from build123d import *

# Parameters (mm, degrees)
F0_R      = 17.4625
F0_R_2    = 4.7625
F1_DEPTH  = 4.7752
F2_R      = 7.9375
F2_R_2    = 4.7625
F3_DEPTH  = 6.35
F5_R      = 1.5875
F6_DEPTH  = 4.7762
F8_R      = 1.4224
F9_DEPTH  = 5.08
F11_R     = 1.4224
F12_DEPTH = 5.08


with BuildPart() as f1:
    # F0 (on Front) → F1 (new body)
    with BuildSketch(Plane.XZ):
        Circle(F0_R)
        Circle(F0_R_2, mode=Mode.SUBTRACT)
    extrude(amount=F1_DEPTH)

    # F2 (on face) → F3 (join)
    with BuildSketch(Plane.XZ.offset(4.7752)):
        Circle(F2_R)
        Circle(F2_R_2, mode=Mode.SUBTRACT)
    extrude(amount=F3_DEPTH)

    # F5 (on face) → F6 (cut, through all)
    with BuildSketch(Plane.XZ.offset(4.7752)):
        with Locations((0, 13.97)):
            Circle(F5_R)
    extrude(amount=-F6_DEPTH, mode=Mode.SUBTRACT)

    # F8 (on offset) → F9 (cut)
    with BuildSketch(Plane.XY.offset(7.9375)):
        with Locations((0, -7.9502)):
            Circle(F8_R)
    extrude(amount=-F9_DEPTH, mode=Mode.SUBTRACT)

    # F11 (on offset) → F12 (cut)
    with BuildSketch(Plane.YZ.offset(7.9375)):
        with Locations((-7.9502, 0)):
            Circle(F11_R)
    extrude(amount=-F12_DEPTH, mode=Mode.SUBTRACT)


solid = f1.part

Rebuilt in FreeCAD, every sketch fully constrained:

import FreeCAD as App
import Part
import Sketcher
Q = App.Units.Quantity

doc = App.newDocument("Part")
body = doc.addObject("PartDesign::Body", "Body")

sketch1 = doc.addObject("Sketcher::SketchObject", "Sketch")
body.addObject(sketch1)
sketch1.AttachmentSupport = (doc.XZ_Plane, [""])
sketch1.MapMode = "FlatFace"
sketch1.addGeometry([
    Part.Circle(App.Vector(0, 0, 0), App.Vector(0, 0, 1), 17.4625),
    Part.Circle(App.Vector(0, 0, 0), App.Vector(0, 0, 1), 4.7625),
], False)
sketch1.addConstraint([
    Sketcher.Constraint("Coincident", 0, 3, -1, 1),
    Sketcher.Constraint("Coincident", 1, 3, -1, 1),
    Sketcher.Constraint("Diameter", 0, Q("1.375 in")),
    Sketcher.Constraint("Diameter", 1, Q("0.375 in")),
])
pad1 = doc.addObject("PartDesign::Pad", "Pad")
body.addObject(pad1)
pad1.Profile = sketch1
pad1.Length = Q("0.188 in")

sketch2 = doc.addObject("Sketcher::SketchObject", "Sketch001")
body.addObject(sketch2)
sketch2.AttachmentSupport = (doc.XZ_Plane, [""])
sketch2.MapMode = "FlatFace"
sketch2.AttachmentOffset = App.Placement(App.Vector(0, 0, 0.188 * 25.4), App.Rotation())
sketch2.addGeometry([
    Part.Circle(App.Vector(0, 0, 0), App.Vector(0, 0, 1), 7.9375),
    Part.Circle(App.Vector(0, 0, 0), App.Vector(0, 0, 1), 4.7625),
], False)
sketch2.addConstraint([
    Sketcher.Constraint("Coincident", 0, 3, -1, 1),
    Sketcher.Constraint("Coincident", 1, 3, -1, 1),
    Sketcher.Constraint("Diameter", 0, Q("0.625 in")),
    Sketcher.Constraint("Diameter", 1, Q("0.375 in")),
])
pad2 = doc.addObject("PartDesign::Pad", "Pad001")
body.addObject(pad2)
pad2.Profile = sketch2
pad2.Length = Q("0.25 in")

sketch3 = doc.addObject("Sketcher::SketchObject", "Sketch002")
body.addObject(sketch3)
sketch3.AttachmentSupport = (doc.XZ_Plane, [""])
sketch3.MapMode = "FlatFace"
sketch3.AttachmentOffset = App.Placement(App.Vector(0, 0, 0.188 * 25.4), App.Rotation())
sketch3.addGeometry(Part.Circle(App.Vector(0, 13.97, 0), App.Vector(0, 0, 1), 1.5875), False)
sketch3.addConstraint([
    Sketcher.Constraint("PointOnObject", 0, 3, -2),
    Sketcher.Constraint("Diameter", 0, Q("0.125 in")),
    Sketcher.Constraint("DistanceY", -1, 1, 0, 3, Q("0.55 in")),
])
pocket1 = doc.addObject("PartDesign::Pocket", "Pocket")
body.addObject(pocket1)
pocket1.Profile = sketch3
pocket1.Type = "ThroughAll"

sketch4 = doc.addObject("Sketcher::SketchObject", "Sketch003")
body.addObject(sketch4)
sketch4.AttachmentSupport = (doc.XY_Plane, [""])
sketch4.MapMode = "FlatFace"
sketch4.AttachmentOffset = App.Placement(App.Vector(0, 0, 0.3125 * 25.4), App.Rotation())
sketch4.addGeometry(Part.Circle(App.Vector(0, -7.9502, 0), App.Vector(0, 0, 1), 1.4224), False)
sketch4.addConstraint([
    Sketcher.Constraint("PointOnObject", 0, 3, -2),
    Sketcher.Constraint("Diameter", 0, Q("0.112 in")),
    Sketcher.Constraint("DistanceY", 0, 3, -1, 1, Q("0.313 in")),
])
pocket2 = doc.addObject("PartDesign::Pocket", "Pocket001")
body.addObject(pocket2)
pocket2.Profile = sketch4
pocket2.Length = Q("0.2 in")

sketch5 = doc.addObject("Sketcher::SketchObject", "Sketch004")
body.addObject(sketch5)
sketch5.AttachmentSupport = (doc.YZ_Plane, [""])
sketch5.MapMode = "FlatFace"
sketch5.AttachmentOffset = App.Placement(App.Vector(0, 0, 0.3125 * 25.4), App.Rotation())
sketch5.addGeometry(Part.Circle(App.Vector(-7.9502, 0, 0), App.Vector(0, 0, 1), 1.4224), False)
sketch5.addConstraint([
    Sketcher.Constraint("PointOnObject", 0, 3, -1),
    Sketcher.Constraint("Diameter", 0, Q("0.112 in")),
    Sketcher.Constraint("DistanceX", 0, 3, -1, 1, Q("0.313 in")),
])
pocket3 = doc.addObject("PartDesign::Pocket", "Pocket002")
body.addObject(pocket3)
pocket3.Profile = sketch5
pocket3.Length = Q("0.2 in")

doc.recompute()
